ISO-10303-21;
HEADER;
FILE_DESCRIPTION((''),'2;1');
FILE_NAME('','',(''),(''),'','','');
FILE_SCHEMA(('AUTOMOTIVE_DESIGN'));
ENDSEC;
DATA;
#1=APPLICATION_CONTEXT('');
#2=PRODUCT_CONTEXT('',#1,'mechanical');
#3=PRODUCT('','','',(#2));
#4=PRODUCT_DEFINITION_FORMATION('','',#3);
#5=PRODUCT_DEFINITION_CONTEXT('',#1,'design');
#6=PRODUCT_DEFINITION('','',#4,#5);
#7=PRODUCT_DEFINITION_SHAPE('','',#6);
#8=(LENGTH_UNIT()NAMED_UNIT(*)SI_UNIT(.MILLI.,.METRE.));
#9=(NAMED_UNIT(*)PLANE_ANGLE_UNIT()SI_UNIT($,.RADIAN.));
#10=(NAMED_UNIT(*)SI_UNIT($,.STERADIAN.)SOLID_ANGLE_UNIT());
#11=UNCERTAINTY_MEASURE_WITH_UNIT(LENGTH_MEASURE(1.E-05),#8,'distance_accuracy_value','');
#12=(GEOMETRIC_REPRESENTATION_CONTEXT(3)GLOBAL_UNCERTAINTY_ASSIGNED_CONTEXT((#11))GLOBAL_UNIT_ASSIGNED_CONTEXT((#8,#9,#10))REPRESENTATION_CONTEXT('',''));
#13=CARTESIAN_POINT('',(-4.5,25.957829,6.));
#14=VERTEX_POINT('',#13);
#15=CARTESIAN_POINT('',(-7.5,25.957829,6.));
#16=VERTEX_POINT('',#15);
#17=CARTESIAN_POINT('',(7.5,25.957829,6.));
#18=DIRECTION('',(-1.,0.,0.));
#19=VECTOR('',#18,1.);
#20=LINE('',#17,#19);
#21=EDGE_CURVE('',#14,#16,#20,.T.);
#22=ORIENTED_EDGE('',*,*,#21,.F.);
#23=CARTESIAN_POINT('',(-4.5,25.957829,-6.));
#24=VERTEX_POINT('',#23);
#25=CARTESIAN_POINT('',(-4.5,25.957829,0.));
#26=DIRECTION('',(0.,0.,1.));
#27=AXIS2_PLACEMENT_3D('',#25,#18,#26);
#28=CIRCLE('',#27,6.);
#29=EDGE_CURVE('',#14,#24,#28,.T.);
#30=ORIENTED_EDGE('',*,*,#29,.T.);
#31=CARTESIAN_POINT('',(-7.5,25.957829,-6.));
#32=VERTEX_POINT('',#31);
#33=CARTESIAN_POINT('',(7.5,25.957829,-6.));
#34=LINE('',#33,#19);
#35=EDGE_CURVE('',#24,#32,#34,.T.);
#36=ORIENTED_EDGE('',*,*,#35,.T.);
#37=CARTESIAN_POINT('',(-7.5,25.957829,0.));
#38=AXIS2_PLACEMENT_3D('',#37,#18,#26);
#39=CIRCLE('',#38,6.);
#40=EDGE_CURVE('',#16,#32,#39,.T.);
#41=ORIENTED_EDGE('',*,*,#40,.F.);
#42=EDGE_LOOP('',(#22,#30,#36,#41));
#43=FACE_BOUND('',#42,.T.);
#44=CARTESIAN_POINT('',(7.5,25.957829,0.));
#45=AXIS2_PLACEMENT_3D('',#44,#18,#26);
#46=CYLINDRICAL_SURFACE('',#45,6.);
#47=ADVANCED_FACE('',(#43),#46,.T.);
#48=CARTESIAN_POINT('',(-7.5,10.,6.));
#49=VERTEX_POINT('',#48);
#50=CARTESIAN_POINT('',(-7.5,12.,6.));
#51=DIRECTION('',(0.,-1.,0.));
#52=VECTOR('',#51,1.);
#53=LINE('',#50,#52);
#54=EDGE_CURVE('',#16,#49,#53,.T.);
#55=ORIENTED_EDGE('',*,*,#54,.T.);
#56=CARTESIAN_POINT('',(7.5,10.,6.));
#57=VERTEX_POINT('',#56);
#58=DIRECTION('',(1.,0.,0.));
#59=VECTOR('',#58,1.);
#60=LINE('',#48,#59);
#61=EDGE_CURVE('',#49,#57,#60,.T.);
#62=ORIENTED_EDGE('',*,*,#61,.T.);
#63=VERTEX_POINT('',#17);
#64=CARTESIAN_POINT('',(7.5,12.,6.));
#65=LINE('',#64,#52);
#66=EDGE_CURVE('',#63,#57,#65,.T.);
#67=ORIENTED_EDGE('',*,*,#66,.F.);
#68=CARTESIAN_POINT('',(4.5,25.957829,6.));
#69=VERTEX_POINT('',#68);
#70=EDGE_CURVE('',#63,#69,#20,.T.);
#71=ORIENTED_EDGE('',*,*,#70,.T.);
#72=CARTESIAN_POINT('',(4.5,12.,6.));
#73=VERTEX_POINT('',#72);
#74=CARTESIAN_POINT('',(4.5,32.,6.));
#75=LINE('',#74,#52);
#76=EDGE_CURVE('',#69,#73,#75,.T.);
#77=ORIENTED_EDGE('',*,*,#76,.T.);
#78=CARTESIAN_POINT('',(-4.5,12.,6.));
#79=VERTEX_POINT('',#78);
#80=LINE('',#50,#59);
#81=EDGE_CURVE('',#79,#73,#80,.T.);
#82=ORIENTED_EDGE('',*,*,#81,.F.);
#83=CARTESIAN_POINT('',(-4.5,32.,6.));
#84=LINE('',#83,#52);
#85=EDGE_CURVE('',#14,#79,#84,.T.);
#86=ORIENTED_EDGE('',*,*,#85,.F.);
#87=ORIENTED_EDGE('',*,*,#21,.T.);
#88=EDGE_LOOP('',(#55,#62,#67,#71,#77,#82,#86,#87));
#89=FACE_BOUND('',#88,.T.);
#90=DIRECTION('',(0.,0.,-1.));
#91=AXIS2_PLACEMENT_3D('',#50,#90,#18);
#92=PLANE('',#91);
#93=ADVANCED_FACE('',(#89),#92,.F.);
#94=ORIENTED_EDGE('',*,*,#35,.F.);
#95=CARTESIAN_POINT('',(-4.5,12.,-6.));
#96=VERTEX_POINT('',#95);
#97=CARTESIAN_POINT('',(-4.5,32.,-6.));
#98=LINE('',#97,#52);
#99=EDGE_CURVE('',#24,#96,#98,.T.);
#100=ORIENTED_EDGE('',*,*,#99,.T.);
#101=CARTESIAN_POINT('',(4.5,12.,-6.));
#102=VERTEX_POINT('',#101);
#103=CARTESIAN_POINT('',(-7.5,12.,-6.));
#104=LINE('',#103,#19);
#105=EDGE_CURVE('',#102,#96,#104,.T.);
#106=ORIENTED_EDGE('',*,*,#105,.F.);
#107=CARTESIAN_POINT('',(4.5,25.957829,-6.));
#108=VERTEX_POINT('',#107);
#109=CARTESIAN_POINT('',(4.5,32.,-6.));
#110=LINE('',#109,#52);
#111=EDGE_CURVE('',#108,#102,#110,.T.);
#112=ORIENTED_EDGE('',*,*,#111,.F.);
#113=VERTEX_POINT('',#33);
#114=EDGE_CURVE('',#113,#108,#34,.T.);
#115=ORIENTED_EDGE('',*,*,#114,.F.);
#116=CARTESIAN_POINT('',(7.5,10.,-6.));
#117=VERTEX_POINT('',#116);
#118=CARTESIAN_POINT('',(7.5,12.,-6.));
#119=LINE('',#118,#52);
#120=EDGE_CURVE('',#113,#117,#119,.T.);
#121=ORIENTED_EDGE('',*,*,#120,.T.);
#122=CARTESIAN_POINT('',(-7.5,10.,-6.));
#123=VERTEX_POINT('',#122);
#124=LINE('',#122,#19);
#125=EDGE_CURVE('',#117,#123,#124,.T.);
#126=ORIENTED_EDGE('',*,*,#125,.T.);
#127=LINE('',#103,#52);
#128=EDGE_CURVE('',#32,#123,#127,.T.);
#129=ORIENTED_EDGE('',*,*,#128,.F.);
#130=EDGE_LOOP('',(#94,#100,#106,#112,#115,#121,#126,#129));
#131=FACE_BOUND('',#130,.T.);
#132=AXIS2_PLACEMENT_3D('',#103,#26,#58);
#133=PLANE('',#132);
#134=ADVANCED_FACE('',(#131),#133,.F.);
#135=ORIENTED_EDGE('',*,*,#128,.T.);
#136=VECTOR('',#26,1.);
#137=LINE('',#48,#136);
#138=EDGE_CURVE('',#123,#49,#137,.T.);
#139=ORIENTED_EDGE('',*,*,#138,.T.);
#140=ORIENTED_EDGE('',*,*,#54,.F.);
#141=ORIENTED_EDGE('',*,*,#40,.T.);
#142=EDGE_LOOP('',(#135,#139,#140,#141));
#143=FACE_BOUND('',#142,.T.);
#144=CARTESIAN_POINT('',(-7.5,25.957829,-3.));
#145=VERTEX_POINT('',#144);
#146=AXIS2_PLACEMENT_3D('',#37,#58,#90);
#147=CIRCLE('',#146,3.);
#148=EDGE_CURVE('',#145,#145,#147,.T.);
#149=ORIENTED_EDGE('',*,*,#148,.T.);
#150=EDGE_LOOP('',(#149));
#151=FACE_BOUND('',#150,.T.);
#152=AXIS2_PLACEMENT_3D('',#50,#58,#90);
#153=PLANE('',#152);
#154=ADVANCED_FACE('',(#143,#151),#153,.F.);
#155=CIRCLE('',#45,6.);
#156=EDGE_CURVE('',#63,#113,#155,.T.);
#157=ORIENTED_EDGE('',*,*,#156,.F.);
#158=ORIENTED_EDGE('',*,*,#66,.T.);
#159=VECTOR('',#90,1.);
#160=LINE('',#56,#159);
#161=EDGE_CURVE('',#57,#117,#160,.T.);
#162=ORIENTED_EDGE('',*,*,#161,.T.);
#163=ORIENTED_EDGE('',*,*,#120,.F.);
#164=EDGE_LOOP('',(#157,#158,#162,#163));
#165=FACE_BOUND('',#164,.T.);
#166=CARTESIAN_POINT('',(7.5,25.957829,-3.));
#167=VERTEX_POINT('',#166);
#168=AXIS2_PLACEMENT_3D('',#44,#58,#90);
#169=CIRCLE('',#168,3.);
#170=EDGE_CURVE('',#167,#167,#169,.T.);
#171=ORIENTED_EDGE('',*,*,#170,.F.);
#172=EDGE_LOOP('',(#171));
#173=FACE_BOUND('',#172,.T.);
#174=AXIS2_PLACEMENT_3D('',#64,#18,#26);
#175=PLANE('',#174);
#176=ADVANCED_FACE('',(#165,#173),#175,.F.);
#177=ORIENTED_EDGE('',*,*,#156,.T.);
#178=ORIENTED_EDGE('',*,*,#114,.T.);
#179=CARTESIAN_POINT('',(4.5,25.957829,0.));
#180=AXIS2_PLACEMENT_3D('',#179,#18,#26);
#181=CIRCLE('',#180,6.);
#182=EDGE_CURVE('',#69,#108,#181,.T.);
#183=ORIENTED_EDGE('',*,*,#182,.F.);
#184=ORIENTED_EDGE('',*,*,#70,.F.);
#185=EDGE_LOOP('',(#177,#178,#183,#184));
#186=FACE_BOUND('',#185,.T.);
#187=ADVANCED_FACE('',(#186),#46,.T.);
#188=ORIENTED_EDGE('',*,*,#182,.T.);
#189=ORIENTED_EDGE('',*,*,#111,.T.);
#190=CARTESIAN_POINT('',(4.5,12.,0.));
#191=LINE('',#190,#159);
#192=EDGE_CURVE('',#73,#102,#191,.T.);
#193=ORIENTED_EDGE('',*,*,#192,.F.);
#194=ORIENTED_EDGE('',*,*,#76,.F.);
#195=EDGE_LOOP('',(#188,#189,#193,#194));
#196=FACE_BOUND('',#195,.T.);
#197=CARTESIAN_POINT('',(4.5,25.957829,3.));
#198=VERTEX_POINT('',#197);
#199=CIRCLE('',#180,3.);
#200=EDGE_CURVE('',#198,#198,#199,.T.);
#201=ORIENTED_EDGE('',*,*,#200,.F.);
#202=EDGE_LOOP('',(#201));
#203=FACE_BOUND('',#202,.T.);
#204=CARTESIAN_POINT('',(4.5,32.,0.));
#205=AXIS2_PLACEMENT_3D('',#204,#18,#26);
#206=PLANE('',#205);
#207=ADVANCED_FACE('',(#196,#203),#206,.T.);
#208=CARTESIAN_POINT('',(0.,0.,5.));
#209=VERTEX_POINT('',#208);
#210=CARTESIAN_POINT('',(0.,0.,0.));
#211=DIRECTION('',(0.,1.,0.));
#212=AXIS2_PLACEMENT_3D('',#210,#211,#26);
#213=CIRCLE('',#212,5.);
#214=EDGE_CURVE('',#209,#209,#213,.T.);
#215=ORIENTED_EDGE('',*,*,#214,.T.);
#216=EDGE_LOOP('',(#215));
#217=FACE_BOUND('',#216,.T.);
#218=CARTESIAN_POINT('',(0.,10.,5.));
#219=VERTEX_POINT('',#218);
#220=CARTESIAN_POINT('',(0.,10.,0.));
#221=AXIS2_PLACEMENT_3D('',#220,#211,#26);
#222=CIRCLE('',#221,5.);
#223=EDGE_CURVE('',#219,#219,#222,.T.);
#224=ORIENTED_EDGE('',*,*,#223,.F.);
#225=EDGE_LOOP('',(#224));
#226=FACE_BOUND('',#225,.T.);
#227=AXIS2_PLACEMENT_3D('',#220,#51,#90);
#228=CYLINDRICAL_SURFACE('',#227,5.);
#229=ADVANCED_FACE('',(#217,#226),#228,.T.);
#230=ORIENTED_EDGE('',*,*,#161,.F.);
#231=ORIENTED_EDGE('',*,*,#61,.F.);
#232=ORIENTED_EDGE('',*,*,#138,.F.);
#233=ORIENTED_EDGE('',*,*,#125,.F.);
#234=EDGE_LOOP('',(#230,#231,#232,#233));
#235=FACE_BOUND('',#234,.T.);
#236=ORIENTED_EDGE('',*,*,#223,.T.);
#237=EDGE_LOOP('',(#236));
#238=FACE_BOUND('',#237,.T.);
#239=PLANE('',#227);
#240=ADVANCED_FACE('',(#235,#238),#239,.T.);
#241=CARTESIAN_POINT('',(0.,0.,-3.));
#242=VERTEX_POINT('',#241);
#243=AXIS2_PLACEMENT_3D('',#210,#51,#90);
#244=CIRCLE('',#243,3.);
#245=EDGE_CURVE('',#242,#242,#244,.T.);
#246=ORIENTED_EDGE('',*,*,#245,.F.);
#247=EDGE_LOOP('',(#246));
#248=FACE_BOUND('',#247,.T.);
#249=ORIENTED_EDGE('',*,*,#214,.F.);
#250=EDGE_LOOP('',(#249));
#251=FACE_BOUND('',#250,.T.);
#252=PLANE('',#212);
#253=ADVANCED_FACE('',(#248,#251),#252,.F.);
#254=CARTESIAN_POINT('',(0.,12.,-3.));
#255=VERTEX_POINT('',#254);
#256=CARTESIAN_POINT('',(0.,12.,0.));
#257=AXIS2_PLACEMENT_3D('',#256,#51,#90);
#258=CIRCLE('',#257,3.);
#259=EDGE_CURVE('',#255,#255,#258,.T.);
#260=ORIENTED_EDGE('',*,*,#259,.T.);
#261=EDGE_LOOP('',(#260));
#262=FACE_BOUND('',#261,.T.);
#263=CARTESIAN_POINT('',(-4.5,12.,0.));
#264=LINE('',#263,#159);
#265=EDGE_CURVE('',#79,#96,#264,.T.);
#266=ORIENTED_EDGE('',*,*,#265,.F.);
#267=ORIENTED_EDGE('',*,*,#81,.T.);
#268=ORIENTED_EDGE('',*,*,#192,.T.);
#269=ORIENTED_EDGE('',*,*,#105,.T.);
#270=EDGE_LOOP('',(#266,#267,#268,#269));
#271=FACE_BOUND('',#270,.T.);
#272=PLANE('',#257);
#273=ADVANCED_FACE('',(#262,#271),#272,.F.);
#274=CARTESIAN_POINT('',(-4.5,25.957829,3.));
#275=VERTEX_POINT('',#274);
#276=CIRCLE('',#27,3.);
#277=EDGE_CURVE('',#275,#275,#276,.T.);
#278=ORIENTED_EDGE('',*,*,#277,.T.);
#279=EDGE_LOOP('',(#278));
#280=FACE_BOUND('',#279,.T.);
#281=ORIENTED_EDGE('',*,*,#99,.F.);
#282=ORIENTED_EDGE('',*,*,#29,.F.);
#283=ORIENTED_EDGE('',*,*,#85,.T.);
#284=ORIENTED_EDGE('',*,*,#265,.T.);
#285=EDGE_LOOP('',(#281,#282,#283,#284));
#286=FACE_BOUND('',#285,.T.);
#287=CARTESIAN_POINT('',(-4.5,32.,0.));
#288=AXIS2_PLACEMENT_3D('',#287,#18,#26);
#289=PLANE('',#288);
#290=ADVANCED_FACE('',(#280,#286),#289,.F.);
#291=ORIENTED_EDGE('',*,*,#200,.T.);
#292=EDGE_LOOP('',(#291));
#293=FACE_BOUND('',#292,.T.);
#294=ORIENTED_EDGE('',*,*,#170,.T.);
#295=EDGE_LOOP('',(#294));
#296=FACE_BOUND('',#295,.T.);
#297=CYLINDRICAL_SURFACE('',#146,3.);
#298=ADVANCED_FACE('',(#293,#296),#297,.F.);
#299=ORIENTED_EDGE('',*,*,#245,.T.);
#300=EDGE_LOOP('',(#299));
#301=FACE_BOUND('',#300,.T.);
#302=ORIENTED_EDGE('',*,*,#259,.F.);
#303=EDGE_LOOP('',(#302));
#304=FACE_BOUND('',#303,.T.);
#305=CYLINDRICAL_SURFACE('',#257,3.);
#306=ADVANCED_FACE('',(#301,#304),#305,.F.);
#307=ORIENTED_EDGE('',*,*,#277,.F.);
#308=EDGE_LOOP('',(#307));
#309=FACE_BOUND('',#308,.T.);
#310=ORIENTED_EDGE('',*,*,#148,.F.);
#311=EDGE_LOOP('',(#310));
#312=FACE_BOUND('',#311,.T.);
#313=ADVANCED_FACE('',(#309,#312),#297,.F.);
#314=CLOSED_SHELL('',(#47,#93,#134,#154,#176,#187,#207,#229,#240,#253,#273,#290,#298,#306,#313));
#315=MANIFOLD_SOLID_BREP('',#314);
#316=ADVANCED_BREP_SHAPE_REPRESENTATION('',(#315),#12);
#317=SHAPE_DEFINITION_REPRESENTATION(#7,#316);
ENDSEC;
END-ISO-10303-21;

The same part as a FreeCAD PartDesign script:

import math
import FreeCAD as App
import Part
import Sketcher


def add_polygon(sketch, points):
    """Adds a closed chain of lines whose ends are joined by coincident constraints."""
    first, n = sketch.GeometryCount, len(points)
    for a, b in zip(points, points[1:] + points[:1]):
        sketch.addGeometry(Part.LineSegment(App.Vector(*a, 0), App.Vector(*b, 0)), False)
    for i in range(n):
        sketch.addConstraint(Sketcher.Constraint("Coincident", first + i, 2, first + (i + 1) % n, 1))

doc = App.newDocument("Part")
body = doc.addObject("PartDesign::Body", "Body")

# Sketch on XZ plane
sketch1 = body.newObject("Sketcher::SketchObject", "Sketch")
sketch1.AttachmentSupport = (doc.getObject("XZ_Plane"), [""])
sketch1.MapMode = "FlatFace"
sketch1.addGeometry(Part.Circle(App.Vector(0, 0, 0), App.Vector(0, 0, 1), 5), False)
sketch1.addConstraint(Sketcher.Constraint("Coincident", 0, 3, -1, 1))
sketch1.addConstraint(Sketcher.Constraint("Diameter", 0, 10.0))
pad1 = body.newObject("PartDesign::Pad", "Pad")
pad1.Profile = sketch1
pad1.Length = 10
pad1.Reversed = True

# Sketch on XZ plane
sketch2 = body.newObject("Sketcher::SketchObject", "Sketch001")
sketch2.AttachmentSupport = (doc.getObject("XZ_Plane"), [""])
sketch2.MapMode = "FlatFace"
sketch2.AttachmentOffset = App.Placement(App.Vector(0, 0, -10), App.Rotation())
add_polygon(sketch2, [(-8, -6), (-8, 6), (8, 6), (8, -6)])  # lines 0-3
sketch2.addConstraint(Sketcher.Constraint("Vertical", 0))
sketch2.addConstraint(Sketcher.Constraint("Horizontal", 1))
sketch2.addConstraint(Sketcher.Constraint("Vertical", 2))
sketch2.addConstraint(Sketcher.Constraint("Horizontal", 3))
sketch2.addConstraint(Sketcher.Constraint("Symmetric", 0, 2, 2, 2, -1, 1))
sketch2.addConstraint(Sketcher.Constraint("DistanceX", 1, 1, 1, 2, 15.0))
sketch2.addConstraint(Sketcher.Constraint("DistanceY", 0, 1, 0, 2, 12.0))
pad2 = body.newObject("PartDesign::Pad", "Pad001")
pad2.Profile = sketch2
pad2.Length = 2
pad2.Reversed = True

# Sketch on XZ plane
sketch3 = body.newObject("Sketcher::SketchObject", "Sketch002")
sketch3.AttachmentSupport = (doc.getObject("XZ_Plane"), [""])
sketch3.MapMode = "FlatFace"
sketch3.addGeometry(Part.Circle(App.Vector(0, 0, 0), App.Vector(0, 0, 1), 3), False)
sketch3.addConstraint(Sketcher.Constraint("Coincident", 0, 3, -1, 1))
sketch3.addConstraint(Sketcher.Constraint("Diameter", 0, 6.0))
pocket1 = body.newObject("PartDesign::Pocket", "Pocket")
pocket1.Profile = sketch3
pocket1.Type = "ThroughAll"

# Sketch on XZ plane
sketch4 = body.newObject("Sketcher::SketchObject", "Sketch003")
sketch4.AttachmentSupport = (doc.getObject("XZ_Plane"), [""])
sketch4.MapMode = "FlatFace"
sketch4.AttachmentOffset = App.Placement(App.Vector(0, 0, -12), App.Rotation())
add_polygon(sketch4, [(-7.5, -6), (-7.5, 6), (-4.5, 6), (-4.5, -6)])  # lines 0-3
add_polygon(sketch4, [(4.5, -6), (4.5, 6), (7.5, 6), (7.5, -6)])  # lines 4-7
sketch4.addConstraint(Sketcher.Constraint("Vertical", 0))
sketch4.addConstraint(Sketcher.Constraint("Horizontal", 1))
sketch4.addConstraint(Sketcher.Constraint("Vertical", 2))
sketch4.addConstraint(Sketcher.Constraint("Horizontal", 3))
sketch4.addConstraint(Sketcher.Constraint("Vertical", 4))
sketch4.addConstraint(Sketcher.Constraint("Horizontal", 5))
sketch4.addConstraint(Sketcher.Constraint("Vertical", 6))
sketch4.addConstraint(Sketcher.Constraint("Horizontal", 7))
sketch4.addConstraint(Sketcher.Constraint("Symmetric", 2, 2, 4, 2, -1, 1))
sketch4.addConstraint(Sketcher.Constraint("Symmetric", 0, 2, 6, 2, -1, 1))
sketch4.addConstraint(Sketcher.Constraint("Horizontal", 1, 2, 4, 2))
sketch4.addConstraint(Sketcher.Constraint("DistanceX", 1, 1, 1, 2, 3.0))
sketch4.addConstraint(Sketcher.Constraint("DistanceY", 0, 1, 0, 2, 12.0))
sketch4.addConstraint(Sketcher.Constraint("DistanceX", 1, 2, 4, 2, 9.0))
pad3 = body.newObject("PartDesign::Pad", "Pad002")
pad3.Profile = sketch4
pad3.Length = 20
pad3.Reversed = True

# Sketch on YZ plane
sketch5 = body.newObject("Sketcher::SketchObject", "Sketch004")
sketch5.AttachmentSupport = (doc.getObject("YZ_Plane"), [""])
sketch5.MapMode = "FlatFace"
sketch5.AttachmentOffset = App.Placement(App.Vector(0, 0, -7.5), App.Rotation())
sketch5.addGeometry(Part.LineSegment(App.Vector(36.7, -10.7, 0), App.Vector(-4.7, -10.7, 0)), False)
sketch5.addGeometry(Part.LineSegment(App.Vector(-4.7, -10.7, 0), App.Vector(-4.7, -5.1, 0)), False)
sketch5.addGeometry(Part.ArcOfCircle(Part.Circle(App.Vector(-1.6, 0, 0), App.Vector(0, 0, 1), 6), math.radians(-121), math.radians(-90)), False)
sketch5.addGeometry(Part.LineSegment(App.Vector(-1.6, -6, 0), App.Vector(26, -6, 0)), False)
sketch5.addGeometry(Part.ArcOfCircle(Part.Circle(App.Vector(26, 0, 0), App.Vector(0, 0, 1), 6), math.radians(-90), math.radians(90)), False)
sketch5.addGeometry(Part.LineSegment(App.Vector(26, 6, 0), App.Vector(-1.6, 6, 0)), False)
sketch5.addGeometry(Part.ArcOfCircle(Part.Circle(App.Vector(-1.6, 0, 0), App.Vector(0, 0, 1), 6), math.radians(90), math.radians(121)), False)
sketch5.addGeometry(Part.LineSegment(App.Vector(-4.7, 5.1, 0), App.Vector(-4.7, 10.7, 0)), False)
sketch5.addGeometry(Part.LineSegment(App.Vector(-4.7, 10.7, 0), App.Vector(36.7, 10.7, 0)), False)
sketch5.addGeometry(Part.LineSegment(App.Vector(36.7, 10.7, 0), App.Vector(36.7, -10.7, 0)), False)
sketch5.addConstraint(Sketcher.Constraint("Coincident", 0, 2, 1, 1))
sketch5.addConstraint(Sketcher.Constraint("Coincident", 1, 2, 2, 1))
sketch5.addConstraint(Sketcher.Constraint("Tangent", 2, 2, 3, 1))
sketch5.addConstraint(Sketcher.Constraint("Tangent", 3, 2, 4, 1))
sketch5.addConstraint(Sketcher.Constraint("Tangent", 4, 2, 5, 1))
sketch5.addConstraint(Sketcher.Constraint("Tangent", 5, 2, 6, 1))
sketch5.addConstraint(Sketcher.Constraint("Coincident", 6, 2, 7, 1))
sketch5.addConstraint(Sketcher.Constraint("Coincident", 7, 2, 8, 1))
sketch5.addConstraint(Sketcher.Constraint("Coincident", 8, 2, 9, 1))
sketch5.addConstraint(Sketcher.Constraint("Coincident", 9, 2, 0, 1))
sketch5.addConstraint(Sketcher.Constraint("Horizontal", 0))
sketch5.addConstraint(Sketcher.Constraint("Vertical", 1))
sketch5.addConstraint(Sketcher.Constraint("Horizontal", 3))
sketch5.addConstraint(Sketcher.Constraint("Horizontal", 5))
sketch5.addConstraint(Sketcher.Constraint("Vertical", 7))
sketch5.addConstraint(Sketcher.Constraint("Horizontal", 8))
sketch5.addConstraint(Sketcher.Constraint("Vertical", 9))
sketch5.addConstraint(Sketcher.Constraint("Coincident", 6, 3, 2, 3))
sketch5.addConstraint(Sketcher.Constraint("Equal", 2, 4))
sketch5.addConstraint(Sketcher.Constraint("Symmetric", 1, 2, 6, 2, -1))
sketch5.addConstraint(Sketcher.Constraint("Equal", 1, 7))
sketch5.addConstraint(Sketcher.Constraint("Radius", 2, 6.0))
sketch5.addConstraint(Sketcher.Constraint("DistanceX", 0, 2, 0, 1, 41.464))
sketch5.addConstraint(Sketcher.Constraint("DistanceY", 9, 2, 9, 1, 21.464))
sketch5.addConstraint(Sketcher.Constraint("DistanceX", 0, 2, -1, 1, 4.732))
sketch5.addConstraint(Sketcher.Constraint("DistanceX", 3, 1, 3, 2, 27.58413))
sketch5.addConstraint(Sketcher.Constraint("DistanceX", 2, 3, -1, 1, 1.626301))
pocket2 = body.newObject("PartDesign::Pocket", "Pocket001")
pocket2.Profile = sketch5
pocket2.Type = "ThroughAll"
pocket2.Reversed = True

# Sketch on YZ plane
sketch6 = body.newObject("Sketcher::SketchObject", "Sketch005")
sketch6.AttachmentSupport = (doc.getObject("YZ_Plane"), [""])
sketch6.MapMode = "FlatFace"
sketch6.AttachmentOffset = App.Placement(App.Vector(0, 0, 7.5), App.Rotation())
sketch6.addGeometry(Part.Circle(App.Vector(26, 0, 0), App.Vector(0, 0, 1), 3), False)
sketch6.addConstraint(Sketcher.Constraint("PointOnObject", 0, 3, -1))
sketch6.addConstraint(Sketcher.Constraint("Diameter", 0, 6.0))
sketch6.addConstraint(Sketcher.Constraint("DistanceX", -1, 1, 0, 3, 25.957829))
pocket3 = body.newObject("PartDesign::Pocket", "Pocket002")
pocket3.Profile = sketch6
pocket3.Type = "ThroughAll"

doc.recompute()
